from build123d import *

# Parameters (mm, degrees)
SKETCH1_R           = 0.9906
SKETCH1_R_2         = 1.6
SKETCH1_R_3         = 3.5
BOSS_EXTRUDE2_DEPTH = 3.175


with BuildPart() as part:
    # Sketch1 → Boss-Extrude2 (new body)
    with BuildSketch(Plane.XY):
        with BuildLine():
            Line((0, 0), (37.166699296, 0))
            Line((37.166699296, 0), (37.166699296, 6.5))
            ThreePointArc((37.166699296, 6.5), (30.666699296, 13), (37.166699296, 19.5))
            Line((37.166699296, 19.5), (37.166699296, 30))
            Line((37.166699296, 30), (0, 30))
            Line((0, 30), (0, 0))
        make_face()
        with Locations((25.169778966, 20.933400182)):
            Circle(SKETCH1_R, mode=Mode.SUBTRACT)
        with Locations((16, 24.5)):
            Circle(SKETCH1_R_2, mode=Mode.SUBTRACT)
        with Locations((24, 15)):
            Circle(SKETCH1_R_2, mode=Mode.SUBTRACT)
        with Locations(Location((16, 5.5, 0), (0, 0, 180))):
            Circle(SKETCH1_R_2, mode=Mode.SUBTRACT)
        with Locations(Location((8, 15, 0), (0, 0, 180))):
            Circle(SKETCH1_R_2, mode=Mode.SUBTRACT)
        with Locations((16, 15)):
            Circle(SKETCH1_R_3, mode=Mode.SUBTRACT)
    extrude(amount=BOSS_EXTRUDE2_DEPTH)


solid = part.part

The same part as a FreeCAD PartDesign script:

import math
import FreeCAD as App
import Part
import Sketcher

doc = App.newDocument("Part")
params = doc.addObject("Spreadsheet::Sheet", "Params")
for row, (alias, value) in enumerate([
    ("sketch1_diameter", "7 mm"),
    ("sketch1_diameter2", "3.2 mm"),
    ("sketch1_radius", "6.5 mm"),
    ("sketch1_height", "30 mm"),
    ("sketch1_height2", "6.5 mm"),
    ("pad1_length", "3.175 mm"),
], start=1):
    params.set(f"A{row}", alias)
    params.set(f"B{row}", "=" + value)
    params.setAlias(f"B{row}", alias)

body = doc.addObject("PartDesign::Body", "Body")

sketch1 = body.newObject("Sketcher::SketchObject", "Sketch")
sketch1.AttachmentSupport = (doc.getObject("XY_Plane"), [""])
sketch1.MapMode = "FlatFace"
sketch1.addGeometry([
    Part.LineSegment(App.Vector(0, 0, 0), App.Vector(37.2, 0, 0)),
    Part.LineSegment(App.Vector(37.2, 0, 0), App.Vector(37.2, 6.5, 0)),
    Part.ArcOfCircle(Part.Circle(App.Vector(37.2, 13, 0), App.Vector(0, 0, 1), 6.5), math.radians(90), math.radians(270)),
    Part.LineSegment(App.Vector(37.2, 19.5, 0), App.Vector(37.2, 30, 0)),
    Part.LineSegment(App.Vector(37.2, 30, 0), App.Vector(0, 30, 0)),
    Part.LineSegment(App.Vector(0, 30, 0), App.Vector(0, 0, 0)),
    Part.Circle(App.Vector(16, 5.5, 0), App.Vector(0, 0, 1), 1.6),
    Part.Circle(App.Vector(8, 15, 0), App.Vector(0, 0, 1), 1.6),
    Part.Circle(App.Vector(16, 15, 0), App.Vector(0, 0, 1), 3.5),
    Part.Circle(App.Vector(24, 15, 0), App.Vector(0, 0, 1), 1.6),
    Part.Circle(App.Vector(16, 24.5, 0), App.Vector(0, 0, 1), 1.6),
    Part.Circle(App.Vector(25.2, 20.9, 0), App.Vector(0, 0, 1), 1),
], False)
sketch1.addConstraint([
    Sketcher.Constraint("Coincident", 0, 2, 1, 1),
    Sketcher.Constraint("Coincident", 1, 2, 2, 2),
    Sketcher.Constraint("Coincident", 2, 1, 3, 1),
    Sketcher.Constraint("Coincident", 3, 2, 4, 1),
    Sketcher.Constraint("Coincident", 4, 2, 5, 1),
    Sketcher.Constraint("Coincident", 5, 2, 0, 1),
    Sketcher.Constraint("Horizontal", 0),
    Sketcher.Constraint("Vertical", 1),
    Sketcher.Constraint("Vertical", 3),
    Sketcher.Constraint("Horizontal", 4),
    Sketcher.Constraint("Vertical", 5),
    Sketcher.Constraint("Coincident", 5, 2, -1, 1),
    Sketcher.Constraint("Equal", 6, 7),
    Sketcher.Constraint("Equal", 7, 9),
    Sketcher.Constraint("Equal", 9, 10),
    Sketcher.Constraint("Horizontal", 7, 3, 8, 3),
    Sketcher.Constraint("Horizontal", 8, 3, 9, 3),
    Sketcher.Constraint("Vertical", 6, 3, 8, 3),
    Sketcher.Constraint("Vertical", 8, 3, 10, 3),
    Sketcher.Constraint("Vertical", 2, 3, 0, 2),
    Sketcher.Constraint("Vertical", 1, 2, 2, 1),
    Sketcher.Constraint("Diameter", 8, 7.0),
    Sketcher.Constraint("Diameter", 6, 3.2),
    Sketcher.Constraint("Radius", 2, 6.5),
    Sketcher.Constraint("DistanceY", 5, 2, 5, 1, 30.0),
    Sketcher.Constraint("DistanceY", 1, 1, 1, 2, 6.5),
    Sketcher.Constraint("DistanceX", -1, 1, 6, 3, 16.0),
    Sketcher.Constraint("DistanceX", -1, 1, 7, 3, 8.0),
    Sketcher.Constraint("DistanceY", -1, 1, 7, 3, 15.0),
    Sketcher.Constraint("DistanceX", -1, 1, 9, 3, 24.0),
    Sketcher.Constraint("DistanceY", 6, 3, 10, 3, 19.0),
    Sketcher.Constraint("DistanceY", 6, 3, 1, 2, 1.0),
    Sketcher.Constraint("Diameter", 11, 1.9812),
    Sketcher.Constraint("DistanceX", 0, 1, 0, 2, 37.166699),
    Sketcher.Constraint("DistanceY", -1, 1, 11, 3, 20.9334),
    Sketcher.Constraint("DistanceX", -1, 1, 11, 3, 25.169779),
])
sketch1.setExpression("Constraints[21]", "Params.sketch1_diameter")
sketch1.setExpression("Constraints[22]", "Params.sketch1_diameter2")
sketch1.setExpression("Constraints[23]", "Params.sketch1_radius")
sketch1.setExpression("Constraints[24]", "Params.sketch1_height")
sketch1.setExpression("Constraints[25]", "Params.sketch1_height2")
pad1 = body.newObject("PartDesign::Pad", "Pad")
pad1.Profile = sketch1
pad1.setExpression("Length", "Params.pad1_length")

doc.recompute()
